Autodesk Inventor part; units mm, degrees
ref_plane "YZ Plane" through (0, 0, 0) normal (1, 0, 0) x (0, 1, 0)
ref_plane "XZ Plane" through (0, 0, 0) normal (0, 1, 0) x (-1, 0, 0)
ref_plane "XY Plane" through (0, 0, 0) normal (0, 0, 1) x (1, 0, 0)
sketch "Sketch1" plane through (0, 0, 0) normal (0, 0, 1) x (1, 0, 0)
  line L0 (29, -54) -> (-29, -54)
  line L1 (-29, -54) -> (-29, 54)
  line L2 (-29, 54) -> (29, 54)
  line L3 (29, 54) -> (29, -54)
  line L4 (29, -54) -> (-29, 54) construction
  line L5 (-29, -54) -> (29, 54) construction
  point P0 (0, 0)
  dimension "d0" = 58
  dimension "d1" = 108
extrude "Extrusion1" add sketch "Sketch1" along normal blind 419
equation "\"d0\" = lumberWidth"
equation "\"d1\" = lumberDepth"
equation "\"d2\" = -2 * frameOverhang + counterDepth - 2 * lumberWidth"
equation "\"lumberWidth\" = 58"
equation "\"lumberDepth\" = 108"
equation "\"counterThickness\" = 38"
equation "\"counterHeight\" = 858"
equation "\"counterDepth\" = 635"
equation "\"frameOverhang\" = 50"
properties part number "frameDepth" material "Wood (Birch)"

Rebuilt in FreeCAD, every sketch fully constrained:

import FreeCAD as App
import Part
import Sketcher

doc = App.newDocument("Part")
params = doc.addObject("Spreadsheet::Sheet", "Params")
for row, (alias, value) in enumerate([
    ("sketch1_width", "58 mm"),
    ("sketch1_height", "108 mm"),
    ("pad1_length", "419 mm"),
], start=1):
    params.set(f"A{row}", alias)
    params.set(f"B{row}", "=" + value)
    params.setAlias(f"B{row}", alias)

body = doc.addObject("PartDesign::Body", "Body")

# Sketch on XY plane
sketch1 = body.newObject("Sketcher::SketchObject", "Sketch")
sketch1.AttachmentSupport = (doc.getObject("XY_Plane"), [""])
sketch1.MapMode = "FlatFace"
sketch1.addGeometry(Part.LineSegment(App.Vector(-29, -54, 0), App.Vector(29, -54, 0)), False)
sketch1.addGeometry(Part.LineSegment(App.Vector(29, -54, 0), App.Vector(29, 54, 0)), False)
sketch1.addGeometry(Part.LineSegment(App.Vector(29, 54, 0), App.Vector(-29, 54, 0)), False)
sketch1.addGeometry(Part.LineSegment(App.Vector(-29, 54, 0), App.Vector(-29, -54, 0)), False)
sketch1.addConstraint(Sketcher.Constraint("Coincident", 0, 2, 1, 1))
sketch1.addConstraint(Sketcher.Constraint("Coincident", 1, 2, 2, 1))
sketch1.addConstraint(Sketcher.Constraint("Coincident", 2, 2, 3, 1))
sketch1.addConstraint(Sketcher.Constraint("Coincident", 3, 2, 0, 1))
sketch1.addConstraint(Sketcher.Constraint("Horizontal", 0))
sketch1.addConstraint(Sketcher.Constraint("Vertical", 1))
sketch1.addConstraint(Sketcher.Constraint("Horizontal", 2))
sketch1.addConstraint(Sketcher.Constraint("Vertical", 3))
sketch1.addConstraint(Sketcher.Constraint("Symmetric", 0, 2, 2, 2, -1, 1))
sketch1.addConstraint(Sketcher.Constraint("DistanceX", 0, 1, 0, 2, 58.0))
sketch1.addConstraint(Sketcher.Constraint("DistanceY", 1, 1, 1, 2, 108.0))
sketch1.setExpression("Constraints[9]", "Params.sketch1_width")
sketch1.setExpression("Constraints[10]", "Params.sketch1_height")
pad1 = body.newObject("PartDesign::Pad", "Pad")
pad1.Profile = sketch1
pad1.setExpression("Length", "Params.pad1_length")

doc.recompute()
